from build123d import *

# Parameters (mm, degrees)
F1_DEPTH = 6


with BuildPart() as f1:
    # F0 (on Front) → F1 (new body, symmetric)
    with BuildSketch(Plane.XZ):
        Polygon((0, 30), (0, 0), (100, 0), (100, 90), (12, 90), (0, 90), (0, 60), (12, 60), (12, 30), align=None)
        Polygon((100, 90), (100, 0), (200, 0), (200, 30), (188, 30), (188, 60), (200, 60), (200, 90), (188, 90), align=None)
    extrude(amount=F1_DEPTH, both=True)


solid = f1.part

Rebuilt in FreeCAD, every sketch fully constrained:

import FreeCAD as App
import Part
import Sketcher
from FreeCAD import Vector

doc = App.newDocument("Part")
body = doc.addObject("PartDesign::Body", "Body")

# Sketch on XZ plane
sketch1 = doc.addObject("Sketcher::SketchObject", "Sketch")
body.addObject(sketch1)
sketch1.AttachmentSupport = (doc.XZ_Plane, [""])
sketch1.MapMode = "FlatFace"
sketch1.addGeometry([
    Part.LineSegment(Vector(0, 30, 0), Vector(0, 0, 0)),  # 0
    Part.LineSegment(Vector(0, 0, 0), Vector(200, 0, 0)),  # 1
    Part.LineSegment(Vector(200, 0, 0), Vector(200, 30, 0)),  # 2
    Part.LineSegment(Vector(200, 30, 0), Vector(188, 30, 0)),  # 3
    Part.LineSegment(Vector(188, 30, 0), Vector(188, 60, 0)),  # 4
    Part.LineSegment(Vector(188, 60, 0), Vector(200, 60, 0)),  # 5
    Part.LineSegment(Vector(200, 60, 0), Vector(200, 90, 0)),  # 6
    Part.LineSegment(Vector(200, 90, 0), Vector(0, 90, 0)),  # 7
    Part.LineSegment(Vector(0, 90, 0), Vector(0, 60, 0)),  # 8
    Part.LineSegment(Vector(0, 60, 0), Vector(12, 60, 0)),  # 9
    Part.LineSegment(Vector(12, 60, 0), Vector(12, 30, 0)),  # 10
    Part.LineSegment(Vector(12, 30, 0), Vector(0, 30, 0)),  # 11
], False)
sketch1.addConstraint([
    Sketcher.Constraint("Coincident", 0, 2, 1, 1),
    Sketcher.Constraint("Coincident", 1, 2, 2, 1),
    Sketcher.Constraint("Coincident", 2, 2, 3, 1),
    Sketcher.Constraint("Coincident", 3, 2, 4, 1),
    Sketcher.Constraint("Coincident", 4, 2, 5, 1),
    Sketcher.Constraint("Coincident", 5, 2, 6, 1),
    Sketcher.Constraint("Coincident", 6, 2, 7, 1),
    Sketcher.Constraint("Coincident", 7, 2, 8, 1),
    Sketcher.Constraint("Coincident", 8, 2, 9, 1),
    Sketcher.Constraint("Coincident", 9, 2, 10, 1),
    Sketcher.Constraint("Coincident", 10, 2, 11, 1),
    Sketcher.Constraint("Coincident", 11, 2, 0, 1),
    Sketcher.Constraint("Vertical", 0),
    Sketcher.Constraint("Horizontal", 1),
    Sketcher.Constraint("Vertical", 2),
    Sketcher.Constraint("Horizontal", 3),
    Sketcher.Constraint("Vertical", 4),
    Sketcher.Constraint("Horizontal", 5),
    Sketcher.Constraint("Vertical", 6),
    Sketcher.Constraint("Horizontal", 7),
    Sketcher.Constraint("Vertical", 8),
    Sketcher.Constraint("Horizontal", 9),
    Sketcher.Constraint("Vertical", 10),
    Sketcher.Constraint("Horizontal", 11),
    Sketcher.Constraint("Coincident", 0, 2, -1, 1),
    Sketcher.Constraint("PointOnObject", 7, 2, -2),
    Sketcher.Constraint("Horizontal", 5, 2, 8, 2),
    Sketcher.Constraint("Horizontal", 3, 2, 10, 2),
    Sketcher.Constraint("Vertical", 2, 2, 5, 2),
    Sketcher.Constraint("Equal", 5, 9),
    Sketcher.Constraint("Equal", 2, 4),
    Sketcher.Constraint("Equal", 4, 6),
    Sketcher.Constraint("DistanceX", 1, 1, 1, 2, 200.0),
    Sketcher.Constraint("DistanceX", 3, 2, 3, 1, 12.0),
    Sketcher.Constraint("DistanceY", 0, 2, 0, 1, 30.0),
])
pad1 = doc.addObject("PartDesign::Pad", "Pad")
body.addObject(pad1)
pad1.Profile = sketch1
pad1.Length = 12
pad1.Midplane = True

doc.recompute()
